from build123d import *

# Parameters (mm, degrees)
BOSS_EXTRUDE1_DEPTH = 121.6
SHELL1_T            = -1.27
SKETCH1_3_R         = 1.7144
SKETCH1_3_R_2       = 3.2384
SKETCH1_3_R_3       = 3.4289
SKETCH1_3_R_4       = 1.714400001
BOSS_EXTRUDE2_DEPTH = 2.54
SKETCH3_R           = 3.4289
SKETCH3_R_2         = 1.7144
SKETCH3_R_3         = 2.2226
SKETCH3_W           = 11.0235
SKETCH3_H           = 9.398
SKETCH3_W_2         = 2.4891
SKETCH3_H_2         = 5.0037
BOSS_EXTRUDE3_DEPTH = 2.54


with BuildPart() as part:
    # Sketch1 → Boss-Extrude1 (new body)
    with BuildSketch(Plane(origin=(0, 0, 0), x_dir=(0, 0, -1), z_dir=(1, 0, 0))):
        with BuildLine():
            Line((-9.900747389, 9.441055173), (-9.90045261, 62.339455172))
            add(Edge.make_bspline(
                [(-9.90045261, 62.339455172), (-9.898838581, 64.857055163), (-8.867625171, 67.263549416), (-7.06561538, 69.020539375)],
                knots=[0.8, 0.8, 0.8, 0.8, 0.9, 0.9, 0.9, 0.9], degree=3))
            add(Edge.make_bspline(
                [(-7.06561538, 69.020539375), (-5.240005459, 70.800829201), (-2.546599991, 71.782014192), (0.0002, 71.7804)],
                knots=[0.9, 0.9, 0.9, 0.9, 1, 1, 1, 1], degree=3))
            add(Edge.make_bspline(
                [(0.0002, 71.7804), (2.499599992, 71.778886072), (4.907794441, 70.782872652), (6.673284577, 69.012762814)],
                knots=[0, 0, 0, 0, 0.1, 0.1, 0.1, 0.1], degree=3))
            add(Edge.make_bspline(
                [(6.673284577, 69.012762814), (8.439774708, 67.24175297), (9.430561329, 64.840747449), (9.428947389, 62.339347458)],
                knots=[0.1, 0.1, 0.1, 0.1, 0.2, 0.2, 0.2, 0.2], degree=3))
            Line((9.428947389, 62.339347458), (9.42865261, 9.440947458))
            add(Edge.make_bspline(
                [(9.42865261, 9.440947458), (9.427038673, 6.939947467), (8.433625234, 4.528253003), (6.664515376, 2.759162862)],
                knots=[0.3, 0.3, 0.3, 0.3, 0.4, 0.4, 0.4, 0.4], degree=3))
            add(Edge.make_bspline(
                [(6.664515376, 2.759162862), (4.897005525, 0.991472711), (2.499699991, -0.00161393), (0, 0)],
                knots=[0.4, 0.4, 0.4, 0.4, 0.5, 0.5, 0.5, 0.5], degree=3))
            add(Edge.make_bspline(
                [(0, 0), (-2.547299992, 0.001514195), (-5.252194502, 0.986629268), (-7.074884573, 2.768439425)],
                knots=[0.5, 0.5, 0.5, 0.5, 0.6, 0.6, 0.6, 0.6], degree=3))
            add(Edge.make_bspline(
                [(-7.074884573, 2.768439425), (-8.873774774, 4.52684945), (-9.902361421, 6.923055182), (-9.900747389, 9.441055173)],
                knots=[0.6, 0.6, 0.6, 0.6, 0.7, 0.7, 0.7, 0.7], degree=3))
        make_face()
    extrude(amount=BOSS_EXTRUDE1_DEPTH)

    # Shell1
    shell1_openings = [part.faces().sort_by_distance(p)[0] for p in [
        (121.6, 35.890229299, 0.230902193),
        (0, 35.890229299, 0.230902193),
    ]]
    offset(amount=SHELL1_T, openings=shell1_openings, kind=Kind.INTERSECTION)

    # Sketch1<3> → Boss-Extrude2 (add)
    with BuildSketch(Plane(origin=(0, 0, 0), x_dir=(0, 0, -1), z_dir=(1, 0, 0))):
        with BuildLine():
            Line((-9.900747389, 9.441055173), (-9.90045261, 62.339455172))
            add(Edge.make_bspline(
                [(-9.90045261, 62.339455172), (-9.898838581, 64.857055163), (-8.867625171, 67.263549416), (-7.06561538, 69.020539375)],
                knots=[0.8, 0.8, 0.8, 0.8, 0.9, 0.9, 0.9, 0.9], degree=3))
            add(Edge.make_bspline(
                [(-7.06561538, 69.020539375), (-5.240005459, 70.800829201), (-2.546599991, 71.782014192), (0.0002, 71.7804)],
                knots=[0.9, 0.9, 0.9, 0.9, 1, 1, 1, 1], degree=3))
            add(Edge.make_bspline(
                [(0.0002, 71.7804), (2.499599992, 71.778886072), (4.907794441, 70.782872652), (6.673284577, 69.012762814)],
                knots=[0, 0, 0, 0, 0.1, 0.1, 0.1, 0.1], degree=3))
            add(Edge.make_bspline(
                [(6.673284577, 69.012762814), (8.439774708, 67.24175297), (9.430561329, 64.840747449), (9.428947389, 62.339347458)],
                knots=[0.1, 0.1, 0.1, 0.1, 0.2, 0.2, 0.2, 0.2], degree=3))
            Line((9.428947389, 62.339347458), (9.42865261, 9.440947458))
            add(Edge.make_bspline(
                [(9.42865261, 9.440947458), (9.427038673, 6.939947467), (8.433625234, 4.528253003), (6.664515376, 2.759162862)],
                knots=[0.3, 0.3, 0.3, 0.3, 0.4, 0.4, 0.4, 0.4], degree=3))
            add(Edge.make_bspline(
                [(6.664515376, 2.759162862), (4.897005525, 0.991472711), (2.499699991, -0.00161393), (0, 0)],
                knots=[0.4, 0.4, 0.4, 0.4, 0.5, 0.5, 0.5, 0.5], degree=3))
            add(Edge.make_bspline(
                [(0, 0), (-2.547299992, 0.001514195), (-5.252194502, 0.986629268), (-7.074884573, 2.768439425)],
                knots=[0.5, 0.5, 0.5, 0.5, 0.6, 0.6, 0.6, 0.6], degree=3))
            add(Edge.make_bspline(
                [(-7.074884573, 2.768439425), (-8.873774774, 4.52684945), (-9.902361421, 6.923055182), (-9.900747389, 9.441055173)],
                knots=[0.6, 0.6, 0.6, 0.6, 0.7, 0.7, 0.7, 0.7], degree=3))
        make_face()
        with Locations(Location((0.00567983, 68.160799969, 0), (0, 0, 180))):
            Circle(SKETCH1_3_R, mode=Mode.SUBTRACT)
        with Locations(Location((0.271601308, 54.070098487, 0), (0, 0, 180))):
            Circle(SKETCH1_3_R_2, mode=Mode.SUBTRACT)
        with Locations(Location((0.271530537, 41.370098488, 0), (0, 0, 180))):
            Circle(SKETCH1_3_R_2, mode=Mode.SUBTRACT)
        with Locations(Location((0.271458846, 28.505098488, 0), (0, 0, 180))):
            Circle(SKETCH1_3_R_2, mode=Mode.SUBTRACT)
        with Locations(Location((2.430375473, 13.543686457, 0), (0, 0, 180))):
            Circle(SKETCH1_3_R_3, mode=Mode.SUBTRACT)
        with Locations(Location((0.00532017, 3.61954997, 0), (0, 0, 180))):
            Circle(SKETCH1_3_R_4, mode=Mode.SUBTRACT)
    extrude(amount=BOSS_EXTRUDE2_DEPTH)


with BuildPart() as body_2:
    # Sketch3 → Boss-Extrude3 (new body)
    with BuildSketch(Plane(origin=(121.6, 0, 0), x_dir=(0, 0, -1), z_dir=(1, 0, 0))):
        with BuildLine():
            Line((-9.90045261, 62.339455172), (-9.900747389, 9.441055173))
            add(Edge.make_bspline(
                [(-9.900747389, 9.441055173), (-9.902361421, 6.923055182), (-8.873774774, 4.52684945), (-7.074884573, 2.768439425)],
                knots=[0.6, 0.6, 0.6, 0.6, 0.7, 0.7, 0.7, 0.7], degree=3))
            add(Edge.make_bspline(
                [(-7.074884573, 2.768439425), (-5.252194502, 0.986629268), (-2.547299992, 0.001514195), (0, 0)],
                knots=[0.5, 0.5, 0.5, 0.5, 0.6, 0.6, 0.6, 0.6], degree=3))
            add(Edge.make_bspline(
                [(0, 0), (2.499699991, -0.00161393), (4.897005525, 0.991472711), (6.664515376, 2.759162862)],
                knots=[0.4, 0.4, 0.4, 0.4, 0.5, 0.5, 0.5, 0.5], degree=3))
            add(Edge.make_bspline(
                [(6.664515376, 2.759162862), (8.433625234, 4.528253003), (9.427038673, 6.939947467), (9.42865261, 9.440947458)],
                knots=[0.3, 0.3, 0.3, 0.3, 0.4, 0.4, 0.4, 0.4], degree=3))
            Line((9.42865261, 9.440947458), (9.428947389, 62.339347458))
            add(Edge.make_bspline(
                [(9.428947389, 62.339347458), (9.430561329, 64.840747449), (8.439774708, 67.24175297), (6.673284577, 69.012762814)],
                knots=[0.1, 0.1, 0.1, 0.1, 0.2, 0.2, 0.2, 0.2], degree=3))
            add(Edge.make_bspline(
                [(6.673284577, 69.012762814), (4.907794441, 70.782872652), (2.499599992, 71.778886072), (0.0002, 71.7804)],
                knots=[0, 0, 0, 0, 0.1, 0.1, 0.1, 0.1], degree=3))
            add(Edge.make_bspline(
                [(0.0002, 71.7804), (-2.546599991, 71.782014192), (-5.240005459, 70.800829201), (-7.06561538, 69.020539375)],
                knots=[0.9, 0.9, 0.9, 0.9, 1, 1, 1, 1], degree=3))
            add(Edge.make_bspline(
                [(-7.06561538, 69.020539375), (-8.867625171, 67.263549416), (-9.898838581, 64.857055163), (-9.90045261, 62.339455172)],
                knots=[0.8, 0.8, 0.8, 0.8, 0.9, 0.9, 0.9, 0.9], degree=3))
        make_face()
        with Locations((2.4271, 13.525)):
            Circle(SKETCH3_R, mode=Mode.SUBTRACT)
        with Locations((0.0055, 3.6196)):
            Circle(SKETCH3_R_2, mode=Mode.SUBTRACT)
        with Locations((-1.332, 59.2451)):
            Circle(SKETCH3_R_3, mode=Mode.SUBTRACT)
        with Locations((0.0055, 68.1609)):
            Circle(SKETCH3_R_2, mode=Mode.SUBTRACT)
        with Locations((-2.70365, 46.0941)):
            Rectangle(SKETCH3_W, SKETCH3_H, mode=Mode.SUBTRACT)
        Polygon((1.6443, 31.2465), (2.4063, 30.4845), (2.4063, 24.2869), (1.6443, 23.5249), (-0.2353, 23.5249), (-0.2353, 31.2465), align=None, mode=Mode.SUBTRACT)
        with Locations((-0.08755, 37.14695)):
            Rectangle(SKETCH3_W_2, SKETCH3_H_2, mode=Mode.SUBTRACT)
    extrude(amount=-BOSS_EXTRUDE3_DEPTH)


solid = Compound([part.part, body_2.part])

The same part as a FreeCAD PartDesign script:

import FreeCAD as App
import Part
import Sketcher

V = App.Vector
Q = App.Units.Quantity


def faces_at(feature, points):
    """Names of the faces that lie closest to the given points."""
    faces = feature.Shape.Faces
    near = lambda p: min(range(len(faces)), key=lambda i: faces[i].distToShape(Part.Vertex(*p))[0])
    return sorted({f"Face{near(p) + 1}" for p in points})


def add_polygon(sketch, points):
    """Adds a closed chain of lines whose ends are joined by coincident constraints."""
    first, n = sketch.GeometryCount, len(points)
    for a, b in zip(points, points[1:] + points[:1]):
        sketch.addGeometry(Part.LineSegment(App.Vector(*a, 0), App.Vector(*b, 0)), False)
    for i in range(n):
        sketch.addConstraint(Sketcher.Constraint("Coincident", first + i, 2, first + (i + 1) % n, 1))

doc = App.newDocument("Part")
body = doc.addObject("PartDesign::Body", "Body")

# Sketch on YZ plane
sketch1 = body.newObject("Sketcher::SketchObject", "Sketch")
sketch1.AttachmentSupport = (doc.getObject("YZ_Plane"), [""])
sketch1.MapMode = "FlatFace"
sketch1.addGeometry(Part.LineSegment(V(62.339455, 9.900453, 0), V(9.441055, 9.900747, 0)), False)
sketch1.addGeometry(Part.BSplineCurve([V(2.768439, 7.074885, 0), V(4.526849, 8.873775, 0), V(6.923055, 9.902361, 0), V(9.441055, 9.900747, 0)], [4, 4], [0.6, 0.7], False, 3, [1, 1, 1, 1], False), False)
sketch1.addGeometry(Part.BSplineCurve([V(0, 0, 0), V(0.001514, 2.5473, 0), V(0.986629, 5.252195, 0), V(2.768439, 7.074885, 0)], [4, 4], [0.5, 0.6], False, 3, [1, 1, 1, 1], False), False)
sketch1.addGeometry(Part.BSplineCurve([V(2.759163, -6.664515, 0), V(0.991473, -4.897006, 0), V(-0.001614, -2.4997, 0), V(0, 0, 0)], [4, 4], [0.4, 0.5], False, 3, [1, 1, 1, 1], False), False)
sketch1.addGeometry(Part.BSplineCurve([V(9.440947, -9.428653, 0), V(6.939947, -9.427039, 0), V(4.528253, -8.433625, 0), V(2.759163, -6.664515, 0)], [4, 4], [0.3, 0.4], False, 3, [1, 1, 1, 1], False), False)
sketch1.addGeometry(Part.LineSegment(V(9.440947, -9.428653, 0), V(62.339347, -9.428947, 0)), False)
sketch1.addGeometry(Part.BSplineCurve([V(69.012763, -6.673285, 0), V(67.241753, -8.439775, 0), V(64.840747, -9.430561, 0), V(62.339347, -9.428947, 0)], [4, 4], [0.1, 0.2], False, 3, [1, 1, 1, 1], False), False)
sketch1.addGeometry(Part.BSplineCurve([V(71.7804, -0.0002, 0), V(71.778886, -2.4996, 0), V(70.782873, -4.907794, 0), V(69.012763, -6.673285, 0)], [4, 4], [0, 0.1], False, 3, [1, 1, 1, 1], False), False)
sketch1.addGeometry(Part.BSplineCurve([V(69.020539, 7.065615, 0), V(70.800829, 5.240005, 0), V(71.782014, 2.5466, 0), V(71.7804, -0.0002, 0)], [4, 4], [0.9, 1], False, 3, [1, 1, 1, 1], False), False)
sketch1.addGeometry(Part.BSplineCurve([V(62.339455, 9.900453, 0), V(64.857055, 9.898839, 0), V(67.263549, 8.867625, 0), V(69.020539, 7.065615, 0)], [4, 4], [0.8, 0.9], False, 3, [1, 1, 1, 1], False), False)
sketch1.addConstraint(Sketcher.Constraint("Block", 1))
sketch1.addConstraint(Sketcher.Constraint("Block", 2))
sketch1.addConstraint(Sketcher.Constraint("Block", 3))
sketch1.addConstraint(Sketcher.Constraint("Block", 4))
sketch1.addConstraint(Sketcher.Constraint("Block", 6))
sketch1.addConstraint(Sketcher.Constraint("Block", 7))
sketch1.addConstraint(Sketcher.Constraint("Block", 8))
sketch1.addConstraint(Sketcher.Constraint("Block", 9))
sketch1.addConstraint(Sketcher.Constraint("Coincident", 0, 2, 1, 2))
sketch1.addConstraint(Sketcher.Constraint("Coincident", 4, 1, 5, 1))
sketch1.addConstraint(Sketcher.Constraint("Coincident", 5, 2, 6, 2))
sketch1.addConstraint(Sketcher.Constraint("Coincident", 9, 1, 0, 1))
pad1 = body.newObject("PartDesign::Pad", "Pad")
pad1.Profile = sketch1
pad1.Length = 121.6
doc.recompute()

thickness = body.newObject("PartDesign::Thickness", "Thickness")
thickness.Base = (pad1, faces_at(pad1, [(121.6, 35.89, 0.236), (0, 35.89, 0.236)]))
thickness.Value = Q("0.05 in")
thickness.Reversed = True
thickness.Join = "Intersection"

# Sketch on YZ plane
sketch2 = body.newObject("Sketcher::SketchObject", "Sketch001")
sketch2.AttachmentSupport = (doc.getObject("YZ_Plane"), [""])
sketch2.MapMode = "FlatFace"
sketch2.addGeometry(Part.LineSegment(V(62.339455, 9.900453, 0), V(9.441055, 9.900747, 0)), False)
sketch2.addGeometry(Part.BSplineCurve([V(2.768439, 7.074885, 0), V(4.526849, 8.873775, 0), V(6.923055, 9.902361, 0), V(9.441055, 9.900747, 0)], [4, 4], [0.6, 0.7], False, 3, [1, 1, 1, 1], False), False)
sketch2.addGeometry(Part.BSplineCurve([V(0, 0, 0), V(0.001514, 2.5473, 0), V(0.986629, 5.252195, 0), V(2.768439, 7.074885, 0)], [4, 4], [0.5, 0.6], False, 3, [1, 1, 1, 1], False), False)
sketch2.addGeometry(Part.BSplineCurve([V(2.759163, -6.664515, 0), V(0.991473, -4.897006, 0), V(-0.001614, -2.4997, 0), V(0, 0, 0)], [4, 4], [0.4, 0.5], False, 3, [1, 1, 1, 1], False), False)
sketch2.addGeometry(Part.BSplineCurve([V(9.440947, -9.428653, 0), V(6.939947, -9.427039, 0), V(4.528253, -8.433625, 0), V(2.759163, -6.664515, 0)], [4, 4], [0.3, 0.4], False, 3, [1, 1, 1, 1], False), False)
sketch2.addGeometry(Part.LineSegment(V(9.440947, -9.428653, 0), V(62.339347, -9.428947, 0)), False)
sketch2.addGeometry(Part.BSplineCurve([V(69.012763, -6.673285, 0), V(67.241753, -8.439775, 0), V(64.840747, -9.430561, 0), V(62.339347, -9.428947, 0)], [4, 4], [0.1, 0.2], False, 3, [1, 1, 1, 1], False), False)
sketch2.addGeometry(Part.BSplineCurve([V(71.7804, -0.0002, 0), V(71.778886, -2.4996, 0), V(70.782873, -4.907794, 0), V(69.012763, -6.673285, 0)], [4, 4], [0, 0.1], False, 3, [1, 1, 1, 1], False), False)
sketch2.addGeometry(Part.BSplineCurve([V(69.020539, 7.065615, 0), V(70.800829, 5.240005, 0), V(71.782014, 2.5466, 0), V(71.7804, -0.0002, 0)], [4, 4], [0.9, 1], False, 3, [1, 1, 1, 1], False), False)
sketch2.addGeometry(Part.BSplineCurve([V(62.339455, 9.900453, 0), V(64.857055, 9.898839, 0), V(67.263549, 8.867625, 0), V(69.020539, 7.065615, 0)], [4, 4], [0.8, 0.9], False, 3, [1, 1, 1, 1], False), False)
sketch2.addGeometry(Part.Circle(V(13.543686, -2.430375, 0), V(0, 0, 1), 3.4289), False)
sketch2.addGeometry(Part.Circle(V(3.61955, -0.00532, 0), V(0, 0, 1), 1.7144), False)
sketch2.addGeometry(Part.Circle(V(28.505098, -0.271459, 0), V(0, 0, 1), 3.2384), False)
sketch2.addGeometry(Part.Circle(V(41.370098, -0.271531, 0), V(0, 0, 1), 3.2384), False)
sketch2.addGeometry(Part.Circle(V(54.070098, -0.271601, 0), V(0, 0, 1), 3.2384), False)
sketch2.addGeometry(Part.Circle(V(68.1608, -0.00568, 0), V(0, 0, 1), 1.7144), False)
sketch2.addConstraint(Sketcher.Constraint("Block", 1))
sketch2.addConstraint(Sketcher.Constraint("Block", 2))
sketch2.addConstraint(Sketcher.Constraint("Block", 3))
sketch2.addConstraint(Sketcher.Constraint("Block", 4))
sketch2.addConstraint(Sketcher.Constraint("Block", 6))
sketch2.addConstraint(Sketcher.Constraint("Block", 7))
sketch2.addConstraint(Sketcher.Constraint("Block", 8))
sketch2.addConstraint(Sketcher.Constraint("Block", 9))
sketch2.addConstraint(Sketcher.Constraint("Coincident", 0, 2, 1, 2))
sketch2.addConstraint(Sketcher.Constraint("Coincident", 4, 1, 5, 1))
sketch2.addConstraint(Sketcher.Constraint("Coincident", 5, 2, 6, 2))
sketch2.addConstraint(Sketcher.Constraint("Coincident", 9, 1, 0, 1))
sketch2.addConstraint(Sketcher.Constraint("Equal", 12, 13))
sketch2.addConstraint(Sketcher.Constraint("Equal", 13, 14))
sketch2.addConstraint(Sketcher.Constraint("Equal", 11, 15))
sketch2.addConstraint(Sketcher.Constraint("DistanceX", 13, 3, 14, 3, Q("0.5 in")))
sketch2.addConstraint(Sketcher.Constraint("Diameter", 10, Q("6.8578 mm")))
sketch2.addConstraint(Sketcher.Constraint("Diameter", 11, Q("3.4288 mm")))
sketch2.addConstraint(Sketcher.Constraint("Diameter", 12, Q("6.4768 mm")))
sketch2.addConstraint(Sketcher.Constraint("DistanceX", -1, 1, 12, 3, Q("28.505098 mm")))
sketch2.addConstraint(Sketcher.Constraint("DistanceX", -1, 1, 13, 3, Q("41.370098 mm")))
sketch2.addConstraint(Sketcher.Constraint("DistanceY", 14, 3, -1, 1, Q("0.271601 mm")))
sketch2.addConstraint(Sketcher.Constraint("DistanceX", -1, 1, 15, 3, Q("68.1608 mm")))
sketch2.addConstraint(Sketcher.Constraint("DistanceX", -1, 1, 11, 3, Q("3.61955 mm")))
sketch2.addConstraint(Sketcher.Constraint("DistanceY", 11, 3, -1, 1, Q("0.00532 mm")))
sketch2.addConstraint(Sketcher.Constraint("DistanceY", 12, 3, -1, 1, Q("0.271459 mm")))
sketch2.addConstraint(Sketcher.Constraint("DistanceY", 13, 3, -1, 1, Q("0.271531 mm")))
sketch2.addConstraint(Sketcher.Constraint("DistanceY", 15, 3, -1, 1, Q("0.00568 mm")))
sketch2.addConstraint(Sketcher.Constraint("DistanceX", 0, 2, 10, 3, Q("4.102631 mm")))
sketch2.addConstraint(Sketcher.Constraint("DistanceY", 5, 2, 10, 3, Q("6.998572 mm")))
pad2 = body.newObject("PartDesign::Pad", "Pad001")
pad2.Profile = sketch2
pad2.Length = Q("0.1 in")
body2 = doc.addObject("PartDesign::Body", "Body001")

# Sketch on YZ plane
sketch3 = body2.newObject("Sketcher::SketchObject", "Sketch002")
sketch3.AttachmentSupport = (doc.getObject("YZ_Plane001"), [""])
sketch3.MapMode = "FlatFace"
sketch3.AttachmentOffset = App.Placement(V(0, 0, 121.6), App.Rotation())
sketch3.addGeometry(Part.LineSegment(V(62.339455, 9.900453, 0), V(9.441055, 9.900747, 0)), False)  # 0
sketch3.addGeometry(Part.BSplineCurve([V(9.441055, 9.900747, 0), V(6.923055, 9.902361, 0), V(4.526849, 8.873775, 0), V(2.768439, 7.074885, 0)], [4, 4], [0.6, 0.7], False, 3, [1, 1, 1, 1], False), False)  # 1
sketch3.addGeometry(Part.BSplineCurve([V(2.768439, 7.074885, 0), V(0.986629, 5.252195, 0), V(0.001514, 2.5473, 0), V(0, 0, 0)], [4, 4], [0.5, 0.6], False, 3, [1, 1, 1, 1], False), False)  # 2
sketch3.addGeometry(Part.BSplineCurve([V(0, 0, 0), V(-0.001614, -2.4997, 0), V(0.991473, -4.897006, 0), V(2.759163, -6.664515, 0)], [4, 4], [0.4, 0.5], False, 3, [1, 1, 1, 1], False), False)  # 3
sketch3.addGeometry(Part.BSplineCurve([V(2.759163, -6.664515, 0), V(4.528253, -8.433625, 0), V(6.939947, -9.427039, 0), V(9.440947, -9.428653, 0)], [4, 4], [0.3, 0.4], False, 3, [1, 1, 1, 1], False), False)  # 4
sketch3.addGeometry(Part.LineSegment(V(9.440947, -9.428653, 0), V(62.339347, -9.428947, 0)), False)  # 5
sketch3.addGeometry(Part.BSplineCurve([V(62.339347, -9.428947, 0), V(64.840747, -9.430561, 0), V(67.241753, -8.439775, 0), V(69.012763, -6.673285, 0)], [4, 4], [0.1, 0.2], False, 3, [1, 1, 1, 1], False), False)  # 6
sketch3.addGeometry(Part.BSplineCurve([V(69.012763, -6.673285, 0), V(70.782873, -4.907794, 0), V(71.778886, -2.4996, 0), V(71.7804, -0.0002, 0)], [4, 4], [0, 0.1], False, 3, [1, 1, 1, 1], False), False)  # 7
sketch3.addGeometry(Part.BSplineCurve([V(71.7804, -0.0002, 0), V(71.782014, 2.5466, 0), V(70.800829, 5.240005, 0), V(69.020539, 7.065615, 0)], [4, 4], [0.9, 1], False, 3, [1, 1, 1, 1], False), False)  # 8
sketch3.addGeometry(Part.BSplineCurve([V(69.020539, 7.065615, 0), V(67.263549, 8.867625, 0), V(64.857055, 9.898839, 0), V(62.339455, 9.900453, 0)], [4, 4], [0.8, 0.9], False, 3, [1, 1, 1, 1], False), False)  # 9
sketch3.addGeometry(Part.Circle(V(3.6196, -0.0055, 0), V(0, 0, 1), 1.7144), False)  # 10
sketch3.addGeometry(Part.Circle(V(13.525, -2.4271, 0), V(0, 0, 1), 3.4289), False)  # 11
add_polygon(sketch3, [(31.2465, 0.2353), (31.2465, -1.6443), (30.4845, -2.4063), (24.2869, -2.4063), (23.5249, -1.6443), (23.5249, 0.2353)])  # lines 12-17
add_polygon(sketch3, [(41.3951, -2.8081), (41.3951, 8.2154), (50.7931, 8.2154), (50.7931, -2.8081)])  # lines 18-21
sketch3.addGeometry(Part.Circle(V(59.2451, 1.332, 0), V(0, 0, 1), 2.2226), False)  # 22
add_polygon(sketch3, [(34.6451, -1.157), (34.6451, 1.3321), (39.6488, 1.3321), (39.6488, -1.157)])  # lines 23-26
sketch3.addGeometry(Part.Circle(V(68.1609, -0.0055, 0), V(0, 0, 1), 1.7144), False)  # 27
sketch3.addConstraint(Sketcher.Constraint("Block", 1))
sketch3.addConstraint(Sketcher.Constraint("Block", 2))
sketch3.addConstraint(Sketcher.Constraint("Block", 3))
sketch3.addConstraint(Sketcher.Constraint("Block", 4))
sketch3.addConstraint(Sketcher.Constraint("Block", 6))
sketch3.addConstraint(Sketcher.Constraint("Block", 7))
sketch3.addConstraint(Sketcher.Constraint("Block", 8))
sketch3.addConstraint(Sketcher.Constraint("Block", 9))
sketch3.addConstraint(Sketcher.Constraint("Coincident", 0, 2, 1, 1))
sketch3.addConstraint(Sketcher.Constraint("Coincident", 4, 2, 5, 1))
sketch3.addConstraint(Sketcher.Constraint("Coincident", 5, 2, 6, 1))
sketch3.addConstraint(Sketcher.Constraint("Coincident", 9, 2, 0, 1))
sketch3.addConstraint(Sketcher.Constraint("Vertical", 12))
sketch3.addConstraint(Sketcher.Constraint("Horizontal", 14))
sketch3.addConstraint(Sketcher.Constraint("Vertical", 16))
sketch3.addConstraint(Sketcher.Constraint("Horizontal", 17))
sketch3.addConstraint(Sketcher.Constraint("Vertical", 18))
sketch3.addConstraint(Sketcher.Constraint("Horizontal", 19))
sketch3.addConstraint(Sketcher.Constraint("Vertical", 20))
sketch3.addConstraint(Sketcher.Constraint("Horizontal", 21))
sketch3.addConstraint(Sketcher.Constraint("Vertical", 23))
sketch3.addConstraint(Sketcher.Constraint("Horizontal", 24))
sketch3.addConstraint(Sketcher.Constraint("Vertical", 25))
sketch3.addConstraint(Sketcher.Constraint("Horizontal", 26))
sketch3.addConstraint(Sketcher.Constraint("Equal", 10, 27))
sketch3.addConstraint(Sketcher.Constraint("Perpendicular", 13, 15))
sketch3.addConstraint(Sketcher.Constraint("Horizontal", 10, 3, 27, 3))
sketch3.addConstraint(Sketcher.Constraint("Horizontal", 12, 2, 15, 2))
sketch3.addConstraint(Sketcher.Constraint("Equal", 13, 15))
sketch3.addConstraint(Sketcher.Constraint("DistanceX", 19, 1, 19, 2, Q("0.37 in")))
sketch3.addConstraint(Sketcher.Constraint("Diameter", 10, Q("3.4288 mm")))
sketch3.addConstraint(Sketcher.Constraint("Diameter", 11, Q("6.8578 mm")))
sketch3.addConstraint(Sketcher.Constraint("Diameter", 22, Q("4.4452 mm")))
sketch3.addConstraint(Sketcher.Constraint("DistanceX", 14, 2, 14, 1, Q("0.244 in")))
sketch3.addConstraint(Sketcher.Constraint("DistanceX", 17, 1, 17, 2, Q("0.304 in")))
sketch3.addConstraint(Sketcher.Constraint("DistanceY", 12, 2, 12, 1, Q("0.074 in")))
sketch3.addConstraint(Sketcher.Constraint("DistanceY", 22, 3, 18, 2, Q("0.271 in")))
sketch3.addConstraint(Sketcher.Constraint("DistanceY", 21, 2, 23, 2, Q("0.163 in")))
sketch3.addConstraint(Sketcher.Constraint("DistanceX", 24, 1, 24, 2, Q("5.0037 mm")))
sketch3.addConstraint(Sketcher.Constraint("DistanceY", 18, 1, 18, 2, Q("11.0235 mm")))
sketch3.addConstraint(Sketcher.Constraint("DistanceY", 23, 1, 23, 2, Q("2.4891 mm")))
sketch3.addConstraint(Sketcher.Constraint("DistanceX", -1, 1, 27, 3, Q("2.6835 in")))
sketch3.addConstraint(Sketcher.Constraint("DistanceX", -1, 1, 10, 3, Q("3.6196 mm")))
sketch3.addConstraint(Sketcher.Constraint("DistanceY", 10, 3, -1, 1, Q("0.0055 mm")))
sketch3.addConstraint(Sketcher.Constraint("DistanceX", -1, 1, 11, 3, Q("13.525 mm")))
sketch3.addConstraint(Sketcher.Constraint("DistanceY", 11, 3, -1, 1, Q("2.4271 mm")))
sketch3.addConstraint(Sketcher.Constraint("DistanceX", -1, 1, 22, 3, Q("59.2451 mm")))
sketch3.addConstraint(Sketcher.Constraint("DistanceY", -1, 1, 22, 3, Q("1.332 mm")))
sketch3.addConstraint(Sketcher.Constraint("DistanceX", -1, 1, 12, 2, Q("31.2465 mm")))
sketch3.addConstraint(Sketcher.Constraint("DistanceY", 12, 2, -1, 1, Q("1.6443 mm")))
sketch3.addConstraint(Sketcher.Constraint("DistanceX", -1, 1, 18, 2, Q("41.3951 mm")))
sketch3.addConstraint(Sketcher.Constraint("DistanceX", -1, 1, 23, 2, Q("34.6451 mm")))
pad3 = body2.newObject("PartDesign::Pad", "Pad002")
pad3.Profile = sketch3
pad3.Length = Q("0.1 in")
pad3.Reversed = True

doc.recompute()
